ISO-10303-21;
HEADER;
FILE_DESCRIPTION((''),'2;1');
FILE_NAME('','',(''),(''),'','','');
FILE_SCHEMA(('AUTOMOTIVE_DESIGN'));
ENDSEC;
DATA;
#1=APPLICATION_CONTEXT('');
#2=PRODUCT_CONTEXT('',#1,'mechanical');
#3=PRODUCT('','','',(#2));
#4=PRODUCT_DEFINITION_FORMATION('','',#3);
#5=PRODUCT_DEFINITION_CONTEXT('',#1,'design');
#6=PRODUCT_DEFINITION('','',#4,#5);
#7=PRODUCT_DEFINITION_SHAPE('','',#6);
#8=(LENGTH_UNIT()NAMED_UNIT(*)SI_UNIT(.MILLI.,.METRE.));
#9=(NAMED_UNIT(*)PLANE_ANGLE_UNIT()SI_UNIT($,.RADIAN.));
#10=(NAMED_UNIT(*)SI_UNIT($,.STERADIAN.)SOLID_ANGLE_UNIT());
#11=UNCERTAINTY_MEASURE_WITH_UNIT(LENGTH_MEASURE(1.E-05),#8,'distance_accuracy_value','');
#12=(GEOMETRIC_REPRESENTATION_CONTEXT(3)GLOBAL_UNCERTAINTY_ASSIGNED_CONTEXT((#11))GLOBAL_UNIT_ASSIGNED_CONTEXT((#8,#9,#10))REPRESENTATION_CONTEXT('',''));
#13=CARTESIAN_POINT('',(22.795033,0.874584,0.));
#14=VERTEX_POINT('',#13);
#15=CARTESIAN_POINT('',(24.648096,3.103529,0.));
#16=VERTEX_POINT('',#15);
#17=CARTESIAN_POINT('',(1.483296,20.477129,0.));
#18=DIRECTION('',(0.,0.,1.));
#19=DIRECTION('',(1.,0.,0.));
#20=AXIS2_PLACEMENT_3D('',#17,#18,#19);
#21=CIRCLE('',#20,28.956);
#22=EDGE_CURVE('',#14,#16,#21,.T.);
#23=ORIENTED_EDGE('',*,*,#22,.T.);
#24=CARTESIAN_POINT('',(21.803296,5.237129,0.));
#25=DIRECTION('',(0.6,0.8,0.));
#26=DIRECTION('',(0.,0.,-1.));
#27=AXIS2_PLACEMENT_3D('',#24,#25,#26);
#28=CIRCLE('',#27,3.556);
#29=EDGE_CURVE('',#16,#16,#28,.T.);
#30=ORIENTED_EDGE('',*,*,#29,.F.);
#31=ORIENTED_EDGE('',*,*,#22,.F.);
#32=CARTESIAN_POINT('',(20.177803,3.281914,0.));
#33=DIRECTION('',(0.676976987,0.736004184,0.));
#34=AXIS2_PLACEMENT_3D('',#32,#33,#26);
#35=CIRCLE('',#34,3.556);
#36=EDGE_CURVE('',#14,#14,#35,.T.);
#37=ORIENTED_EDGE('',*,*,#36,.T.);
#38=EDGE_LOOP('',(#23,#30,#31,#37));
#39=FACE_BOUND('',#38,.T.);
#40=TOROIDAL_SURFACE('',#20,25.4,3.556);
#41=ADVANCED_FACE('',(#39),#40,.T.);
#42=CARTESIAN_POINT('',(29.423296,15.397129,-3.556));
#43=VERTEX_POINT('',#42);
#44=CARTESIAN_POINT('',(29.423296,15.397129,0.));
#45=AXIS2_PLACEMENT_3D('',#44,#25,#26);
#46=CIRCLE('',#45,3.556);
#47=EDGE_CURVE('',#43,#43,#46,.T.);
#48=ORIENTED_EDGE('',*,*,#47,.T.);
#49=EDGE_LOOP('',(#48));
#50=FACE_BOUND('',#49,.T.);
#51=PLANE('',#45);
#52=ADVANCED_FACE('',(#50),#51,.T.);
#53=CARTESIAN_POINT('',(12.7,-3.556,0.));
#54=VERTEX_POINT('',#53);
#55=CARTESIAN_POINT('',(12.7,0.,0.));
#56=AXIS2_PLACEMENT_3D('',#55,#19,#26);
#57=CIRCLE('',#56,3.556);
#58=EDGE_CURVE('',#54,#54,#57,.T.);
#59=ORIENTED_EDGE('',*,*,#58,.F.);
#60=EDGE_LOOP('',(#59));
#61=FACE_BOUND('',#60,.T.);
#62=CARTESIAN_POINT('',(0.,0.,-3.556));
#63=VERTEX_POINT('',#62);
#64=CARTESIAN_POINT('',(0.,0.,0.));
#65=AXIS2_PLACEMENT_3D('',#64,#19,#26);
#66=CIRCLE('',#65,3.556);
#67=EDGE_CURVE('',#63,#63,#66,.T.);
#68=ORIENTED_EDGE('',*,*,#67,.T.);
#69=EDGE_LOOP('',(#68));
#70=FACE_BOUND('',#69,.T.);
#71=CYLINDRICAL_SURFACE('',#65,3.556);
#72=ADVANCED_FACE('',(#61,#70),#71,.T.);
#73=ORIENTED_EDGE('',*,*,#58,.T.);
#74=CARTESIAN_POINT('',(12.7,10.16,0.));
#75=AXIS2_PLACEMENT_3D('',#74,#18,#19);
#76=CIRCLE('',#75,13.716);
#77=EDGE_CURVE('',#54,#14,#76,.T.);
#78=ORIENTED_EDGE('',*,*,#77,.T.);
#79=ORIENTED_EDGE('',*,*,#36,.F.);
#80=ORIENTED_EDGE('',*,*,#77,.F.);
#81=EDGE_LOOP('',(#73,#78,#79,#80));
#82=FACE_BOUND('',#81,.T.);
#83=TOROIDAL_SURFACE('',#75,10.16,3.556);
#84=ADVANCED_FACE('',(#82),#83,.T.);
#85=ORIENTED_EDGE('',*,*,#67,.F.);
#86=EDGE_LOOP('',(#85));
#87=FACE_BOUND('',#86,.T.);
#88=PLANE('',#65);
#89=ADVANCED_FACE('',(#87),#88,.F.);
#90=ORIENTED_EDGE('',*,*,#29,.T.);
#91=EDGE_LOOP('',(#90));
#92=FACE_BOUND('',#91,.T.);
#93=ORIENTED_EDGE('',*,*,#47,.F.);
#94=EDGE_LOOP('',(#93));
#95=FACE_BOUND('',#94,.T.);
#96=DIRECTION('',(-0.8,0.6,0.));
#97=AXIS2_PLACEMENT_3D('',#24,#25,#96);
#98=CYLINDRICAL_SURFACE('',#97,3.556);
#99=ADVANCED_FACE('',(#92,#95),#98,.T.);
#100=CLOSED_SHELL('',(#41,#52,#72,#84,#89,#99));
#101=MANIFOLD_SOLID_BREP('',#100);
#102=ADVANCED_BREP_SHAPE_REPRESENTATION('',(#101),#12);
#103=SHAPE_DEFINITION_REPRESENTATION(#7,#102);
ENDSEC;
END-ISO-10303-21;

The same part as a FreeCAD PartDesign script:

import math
import FreeCAD as App
import Part
import Sketcher

V = App.Vector
Q = App.Units.Quantity

doc = App.newDocument("Part")
body = doc.addObject("PartDesign::Body", "Body")

# Sketch on YZ plane
sketch1 = body.newObject("Sketcher::SketchObject", "Sketch")
sketch1.AttachmentSupport = (doc.getObject("YZ_Plane"), [""])
sketch1.MapMode = "FlatFace"
sketch1.addGeometry(Part.Circle(V(0, 0, 0), V(0, 0, 1), 3.6), False)
sketch1.addConstraint([
    Sketcher.Constraint("Coincident", 0, 3, -1, 1),
    Sketcher.Constraint("Diameter", 0, Q("0.28 in")),
])

# Sketch on XY plane
sketch2 = body.newObject("Sketcher::SketchObject", "Sketch001")
sketch2.AttachmentSupport = (doc.getObject("XY_Plane"), [""])
sketch2.MapMode = "FlatFace"
sketch2.addGeometry([
    Part.LineSegment(V(0, 0, 0), V(12.7, 0, 0)),
    Part.ArcOfCircle(Part.Circle(V(12.7, 10.2, 0), V(0, 0, 1), 10.2), math.radians(-90), math.radians(-43)),
    Part.ArcOfCircle(Part.Circle(V(1.5, 20.5, 0), V(0, 0, 1), 25.4), math.radians(-42.61), math.radians(-36.87)),
    Part.LineSegment(V(21.8, 5.2, 0), V(29.4, 15.4, 0)),
], False)
sketch2.addConstraint([
    Sketcher.Constraint("Tangent", 0, 2, 1, 1),
    Sketcher.Constraint("Tangent", 1, 2, 2, 1),
    Sketcher.Constraint("Tangent", 2, 2, 3, 1),
    Sketcher.Constraint("Horizontal", 0),
    Sketcher.Constraint("Coincident", 0, 1, -1, 1),
    Sketcher.Constraint("Radius", 2, Q("1 in")),
    Sketcher.Constraint("Radius", 1, Q("0.4 in")),
    Sketcher.Constraint("DistanceX", 0, 1, 0, 2, Q("0.5 in")),
    Sketcher.Constraint("Distance", 3, Q("0.5 in")),
    Sketcher.Constraint("DistanceX", 2, 3, 2, 2, Q("0.8 in")),
    Sketcher.Constraint("DistanceY", -1, 1, 2, 3, 20.477129),
])
doc.recompute()

additivepipe = body.newObject("PartDesign::AdditivePipe", "AdditivePipe")
additivepipe.Profile = sketch1
additivepipe.Spine = (sketch2, ["Edge1", "Edge2", "Edge3", "Edge4"])

doc.recompute()
